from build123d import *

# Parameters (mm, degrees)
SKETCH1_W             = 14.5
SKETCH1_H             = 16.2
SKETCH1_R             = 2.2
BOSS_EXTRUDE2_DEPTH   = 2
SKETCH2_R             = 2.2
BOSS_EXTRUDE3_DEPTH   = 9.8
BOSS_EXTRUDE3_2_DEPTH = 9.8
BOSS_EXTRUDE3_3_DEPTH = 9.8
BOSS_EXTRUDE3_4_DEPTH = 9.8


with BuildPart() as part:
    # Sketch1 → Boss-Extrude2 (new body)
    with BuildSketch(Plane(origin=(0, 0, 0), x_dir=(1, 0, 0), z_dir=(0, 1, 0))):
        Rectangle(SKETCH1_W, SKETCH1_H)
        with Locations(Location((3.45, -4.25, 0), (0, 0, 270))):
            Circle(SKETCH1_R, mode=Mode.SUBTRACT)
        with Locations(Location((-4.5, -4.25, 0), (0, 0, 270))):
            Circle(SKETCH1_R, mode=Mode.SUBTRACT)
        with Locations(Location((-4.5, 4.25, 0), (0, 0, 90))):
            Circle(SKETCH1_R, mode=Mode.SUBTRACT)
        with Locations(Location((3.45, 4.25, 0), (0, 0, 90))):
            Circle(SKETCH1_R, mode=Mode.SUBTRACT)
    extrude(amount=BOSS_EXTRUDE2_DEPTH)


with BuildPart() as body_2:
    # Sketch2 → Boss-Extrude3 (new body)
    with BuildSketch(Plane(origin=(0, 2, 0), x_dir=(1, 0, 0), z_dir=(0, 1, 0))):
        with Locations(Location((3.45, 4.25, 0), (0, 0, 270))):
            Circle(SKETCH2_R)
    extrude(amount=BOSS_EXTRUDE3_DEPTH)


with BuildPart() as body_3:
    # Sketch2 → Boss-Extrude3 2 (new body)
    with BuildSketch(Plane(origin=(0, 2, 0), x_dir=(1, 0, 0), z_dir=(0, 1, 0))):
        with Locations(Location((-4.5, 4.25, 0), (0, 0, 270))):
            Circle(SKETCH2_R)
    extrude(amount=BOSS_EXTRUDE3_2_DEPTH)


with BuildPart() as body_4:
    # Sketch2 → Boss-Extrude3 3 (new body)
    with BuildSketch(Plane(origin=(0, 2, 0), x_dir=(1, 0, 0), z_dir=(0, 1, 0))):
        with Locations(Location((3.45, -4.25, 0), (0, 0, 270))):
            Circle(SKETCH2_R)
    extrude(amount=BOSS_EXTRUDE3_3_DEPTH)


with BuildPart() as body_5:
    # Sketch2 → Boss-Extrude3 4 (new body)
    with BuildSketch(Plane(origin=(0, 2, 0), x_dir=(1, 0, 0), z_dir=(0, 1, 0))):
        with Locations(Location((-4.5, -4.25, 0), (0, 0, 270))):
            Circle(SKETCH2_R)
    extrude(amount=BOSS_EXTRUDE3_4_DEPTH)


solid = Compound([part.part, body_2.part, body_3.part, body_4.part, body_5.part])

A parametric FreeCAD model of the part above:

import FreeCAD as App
import Part
import Sketcher

V = App.Vector
Q = App.Units.Quantity

doc = App.newDocument("Part")
body = doc.addObject("PartDesign::Body", "Body")

# Sketch on XZ plane
sketch1 = body.newObject("Sketcher::SketchObject", "Sketch")
sketch1.AttachmentSupport = (doc.getObject("XZ_Plane"), [""])
sketch1.MapMode = "FlatFace"
sketch1.addGeometry([
    Part.LineSegment(V(-7.2, -8.1, 0), V(-7.2, 8.1, 0)),  # 0
    Part.LineSegment(V(-7.2, 8.1, 0), V(7.2, 8.1, 0)),  # 1
    Part.LineSegment(V(7.2, 8.1, 0), V(7.2, -8.1, 0)),  # 2
    Part.LineSegment(V(7.2, -8.1, 0), V(-7.2, -8.1, 0)),  # 3
    Part.Circle(V(-4.5, 4.2, 0), V(0, 0, 1), 2.2),  # 4
    Part.Circle(V(3.5, 4.2, 0), V(0, 0, 1), 2.2),  # 5
    Part.Circle(V(-4.5, -4.2, 0), V(0, 0, 1), 2.2),  # 6
    Part.Circle(V(3.5, -4.2, 0), V(0, 0, 1), 2.2),  # 7
], False)
sketch1.addConstraint([
    Sketcher.Constraint("Coincident", 0, 2, 1, 1),
    Sketcher.Constraint("Coincident", 1, 2, 2, 1),
    Sketcher.Constraint("Coincident", 2, 2, 3, 1),
    Sketcher.Constraint("Coincident", 3, 2, 0, 1),
    Sketcher.Constraint("Vertical", 0),
    Sketcher.Constraint("Horizontal", 1),
    Sketcher.Constraint("Vertical", 2),
    Sketcher.Constraint("Horizontal", 3),
    Sketcher.Constraint("Equal", 4, 5),
    Sketcher.Constraint("Equal", 5, 6),
    Sketcher.Constraint("Equal", 6, 7),
    Sketcher.Constraint("Symmetric", 0, 2, 2, 2, -1, 1),
    Sketcher.Constraint("Symmetric", 4, 3, 6, 3, -1),
    Sketcher.Constraint("Symmetric", 5, 3, 7, 3, -1),
    Sketcher.Constraint("Horizontal", 4, 3, 5, 3),
    Sketcher.Constraint("Diameter", 4, Q("4.4 mm")),
    Sketcher.Constraint("DistanceX", 1, 1, 1, 2, Q("14.5 mm")),
    Sketcher.Constraint("DistanceY", 0, 1, 0, 2, Q("16.2 mm")),
    Sketcher.Constraint("DistanceX", 4, 3, -1, 1, Q("4.5 mm")),
    Sketcher.Constraint("DistanceY", 6, 3, 4, 3, Q("8.5 mm")),
    Sketcher.Constraint("DistanceX", 0, 2, 5, 3, Q("10.7 mm")),
])
pad1 = body.newObject("PartDesign::Pad", "Pad")
pad1.Profile = sketch1
pad1.Length = 2
pad1.Reversed = True
body2 = doc.addObject("PartDesign::Body", "Body001")

# Sketch on XZ plane
sketch2 = body2.newObject("Sketcher::SketchObject", "Sketch001")
sketch2.AttachmentSupport = (doc.getObject("XZ_Plane001"), [""])
sketch2.MapMode = "FlatFace"
sketch2.AttachmentOffset = App.Placement(V(0, 0, -2), App.Rotation())
sketch2.addGeometry(Part.Circle(V(3.5, -4.2, 0), V(0, 0, 1), 2.2), False)
sketch2.addConstraint([
    Sketcher.Constraint("Diameter", 0, Q("4.4 mm")),
    Sketcher.Constraint("DistanceX", -1, 1, 0, 3, Q("3.45 mm")),
    Sketcher.Constraint("DistanceY", 0, 3, -1, 1, Q("4.25 mm")),
])
pad2 = body2.newObject("PartDesign::Pad", "Pad001")
pad2.Profile = sketch2
pad2.Length = 9.8
pad2.Reversed = True
body3 = doc.addObject("PartDesign::Body", "Body002")

# Sketch on XZ plane
sketch3 = body3.newObject("Sketcher::SketchObject", "Sketch002")
sketch3.AttachmentSupport = (doc.getObject("XZ_Plane002"), [""])
sketch3.MapMode = "FlatFace"
sketch3.AttachmentOffset = App.Placement(V(0, 0, -2), App.Rotation())
sketch3.addGeometry(Part.Circle(V(-4.5, -4.2, 0), V(0, 0, 1), 2.2), False)
sketch3.addConstraint([
    Sketcher.Constraint("Diameter", 0, Q("4.4 mm")),
    Sketcher.Constraint("DistanceX", 0, 3, -1, 1, Q("4.5 mm")),
    Sketcher.Constraint("DistanceY", 0, 3, -1, 1, Q("4.25 mm")),
])
pad3 = body3.newObject("PartDesign::Pad", "Pad002")
pad3.Profile = sketch3
pad3.Length = 9.8
pad3.Reversed = True
body4 = doc.addObject("PartDesign::Body", "Body003")

# Sketch on XZ plane
sketch4 = body4.newObject("Sketcher::SketchObject", "Sketch003")
sketch4.AttachmentSupport = (doc.getObject("XZ_Plane003"), [""])
sketch4.MapMode = "FlatFace"
sketch4.AttachmentOffset = App.Placement(V(0, 0, -2), App.Rotation())
sketch4.addGeometry(Part.Circle(V(3.5, 4.2, 0), V(0, 0, 1), 2.2), False)
sketch4.addConstraint([
    Sketcher.Constraint("Diameter", 0, Q("4.4 mm")),
    Sketcher.Constraint("DistanceX", -1, 1, 0, 3, Q("3.45 mm")),
    Sketcher.Constraint("DistanceY", -1, 1, 0, 3, Q("4.25 mm")),
])
pad4 = body4.newObject("PartDesign::Pad", "Pad003")
pad4.Profile = sketch4
pad4.Length = 9.8
pad4.Reversed = True
body5 = doc.addObject("PartDesign::Body", "Body004")

# Sketch on XZ plane
sketch5 = body5.newObject("Sketcher::SketchObject", "Sketch004")
sketch5.AttachmentSupport = (doc.getObject("XZ_Plane004"), [""])
sketch5.MapMode = "FlatFace"
sketch5.AttachmentOffset = App.Placement(V(0, 0, -2), App.Rotation())
sketch5.addGeometry(Part.Circle(V(-4.5, 4.2, 0), V(0, 0, 1), 2.2), False)
sketch5.addConstraint([
    Sketcher.Constraint("Diameter", 0, Q("4.4 mm")),
    Sketcher.Constraint("DistanceX", 0, 3, -1, 1, Q("4.5 mm")),
    Sketcher.Constraint("DistanceY", -1, 1, 0, 3, Q("4.25 mm")),
])
pad5 = body5.newObject("PartDesign::Pad", "Pad004")
pad5.Profile = sketch5
pad5.Length = 9.8
pad5.Reversed = True

doc.recompute()
